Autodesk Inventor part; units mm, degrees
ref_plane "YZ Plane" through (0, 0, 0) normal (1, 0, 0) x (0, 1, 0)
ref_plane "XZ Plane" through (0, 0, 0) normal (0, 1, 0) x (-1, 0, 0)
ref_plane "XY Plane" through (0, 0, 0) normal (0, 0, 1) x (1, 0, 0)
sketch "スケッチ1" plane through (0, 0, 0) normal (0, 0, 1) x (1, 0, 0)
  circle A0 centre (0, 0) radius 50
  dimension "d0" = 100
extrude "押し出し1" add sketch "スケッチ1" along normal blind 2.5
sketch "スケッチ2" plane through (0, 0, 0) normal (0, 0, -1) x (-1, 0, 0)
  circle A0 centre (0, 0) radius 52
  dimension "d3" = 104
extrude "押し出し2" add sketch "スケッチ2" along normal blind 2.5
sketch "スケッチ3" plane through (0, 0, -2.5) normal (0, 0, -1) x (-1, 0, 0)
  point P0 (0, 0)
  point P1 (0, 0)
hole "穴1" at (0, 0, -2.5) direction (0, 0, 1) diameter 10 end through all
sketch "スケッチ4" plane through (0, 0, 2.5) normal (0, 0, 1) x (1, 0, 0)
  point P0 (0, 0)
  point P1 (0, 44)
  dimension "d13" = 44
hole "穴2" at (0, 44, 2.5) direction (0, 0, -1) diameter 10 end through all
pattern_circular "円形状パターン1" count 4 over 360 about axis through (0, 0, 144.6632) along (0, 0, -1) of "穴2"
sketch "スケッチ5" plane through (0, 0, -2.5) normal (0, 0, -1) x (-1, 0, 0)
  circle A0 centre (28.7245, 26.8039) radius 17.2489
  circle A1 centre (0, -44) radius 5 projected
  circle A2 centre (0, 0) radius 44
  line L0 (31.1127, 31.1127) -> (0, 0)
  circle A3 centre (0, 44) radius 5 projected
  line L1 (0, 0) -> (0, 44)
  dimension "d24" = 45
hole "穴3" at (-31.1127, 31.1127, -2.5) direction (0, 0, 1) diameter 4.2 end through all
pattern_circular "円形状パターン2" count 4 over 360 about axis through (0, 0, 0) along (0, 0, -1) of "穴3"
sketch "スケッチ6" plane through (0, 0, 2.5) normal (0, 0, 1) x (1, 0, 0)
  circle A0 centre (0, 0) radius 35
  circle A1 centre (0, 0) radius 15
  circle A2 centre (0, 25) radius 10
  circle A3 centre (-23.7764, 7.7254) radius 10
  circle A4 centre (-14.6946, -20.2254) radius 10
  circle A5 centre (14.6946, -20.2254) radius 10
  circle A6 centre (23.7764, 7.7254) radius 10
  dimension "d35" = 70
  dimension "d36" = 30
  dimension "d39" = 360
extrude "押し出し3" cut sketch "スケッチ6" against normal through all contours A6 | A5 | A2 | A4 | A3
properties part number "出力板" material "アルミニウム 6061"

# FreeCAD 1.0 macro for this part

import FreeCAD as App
import Part
import Sketcher

doc = App.newDocument("Part")
body = doc.addObject("PartDesign::Body", "Body")

# Sketch on XY plane
sketch1 = body.newObject("Sketcher::SketchObject", "Sketch")
sketch1.AttachmentSupport = (doc.getObject("XY_Plane"), [""])
sketch1.MapMode = "FlatFace"
sketch1.addGeometry(Part.Circle(App.Vector(0, 0, 0), App.Vector(0, 0, 1), 50), False)
sketch1.addConstraint(Sketcher.Constraint("Coincident", 0, 3, -1, 1))
sketch1.addConstraint(Sketcher.Constraint("Diameter", 0, 100.0))
pad1 = body.newObject("PartDesign::Pad", "Pad")
pad1.Profile = sketch1
pad1.Length = 2.5

# Sketch on XY plane
sketch2 = body.newObject("Sketcher::SketchObject", "Sketch001")
sketch2.AttachmentSupport = (doc.getObject("XY_Plane"), [""])
sketch2.MapMode = "FlatFace"
sketch2.addGeometry(Part.Circle(App.Vector(0, 0, 0), App.Vector(0, 0, 1), 52), False)
sketch2.addConstraint(Sketcher.Constraint("Coincident", 0, 3, -1, 1))
sketch2.addConstraint(Sketcher.Constraint("Diameter", 0, 104.0))
pad2 = body.newObject("PartDesign::Pad", "Pad001")
pad2.Profile = sketch2
pad2.Length = 2.5
pad2.Reversed = True

# Sketch on XY plane
sketch3 = body.newObject("Sketcher::SketchObject", "Sketch002")
sketch3.AttachmentSupport = (doc.getObject("XY_Plane"), [""])
sketch3.MapMode = "FlatFace"
sketch3.AttachmentOffset = App.Placement(App.Vector(0, 0, -2.5), App.Rotation())
sketch3.addGeometry(Part.Circle(App.Vector(0, 0, 0), App.Vector(0, 0, 1), 5), False)
sketch3.addConstraint(Sketcher.Constraint("Coincident", 0, 3, -1, 1))
sketch3.addConstraint(Sketcher.Constraint("Diameter", 0, 10.0))
doc.recompute()
hole = body.newObject("PartDesign::Hole", "Hole")
hole.Profile = sketch3
hole.ThreadType = "None"
hole.Diameter = 10
hole.DepthType = "ThroughAll"
hole.Reversed = True

# Sketch on XY plane
sketch4 = body.newObject("Sketcher::SketchObject", "Sketch003")
sketch4.AttachmentSupport = (doc.getObject("XY_Plane"), [""])
sketch4.MapMode = "FlatFace"
sketch4.AttachmentOffset = App.Placement(App.Vector(0, 0, 2.5), App.Rotation())
sketch4.addGeometry(Part.Circle(App.Vector(0, 44, 0), App.Vector(0, 0, 1), 5), False)
sketch4.addConstraint(Sketcher.Constraint("PointOnObject", 0, 3, -2))
sketch4.addConstraint(Sketcher.Constraint("Diameter", 0, 10.0))
sketch4.addConstraint(Sketcher.Constraint("DistanceY", -1, 1, 0, 3, 44.0))
doc.recompute()
hole2 = body.newObject("PartDesign::Hole", "Hole001")
hole2.Profile = sketch4
hole2.ThreadType = "None"
hole2.Diameter = 10
hole2.DepthType = "ThroughAll"
doc.recompute()

polarpattern = body.newObject("PartDesign::PolarPattern", "PolarPattern")
polarpattern.Originals = [hole2]
polarpattern.Axis = (doc.getObject("Z_Axis"), [""])
polarpattern.Angle = 360
polarpattern.Occurrences = 4
body.Tip = polarpattern

# Sketch on XY plane
sketch5 = body.newObject("Sketcher::SketchObject", "Sketch004")
sketch5.AttachmentSupport = (doc.getObject("XY_Plane"), [""])
sketch5.MapMode = "FlatFace"
sketch5.AttachmentOffset = App.Placement(App.Vector(0, 0, -2.5), App.Rotation())
sketch5.addGeometry(Part.Circle(App.Vector(-31.1127, 31.1127, 0), App.Vector(0, 0, 1), 2.1), False)
sketch5.addConstraint(Sketcher.Constraint("Diameter", 0, 4.2))
sketch5.addConstraint(Sketcher.Constraint("DistanceX", 0, 3, -1, 1, 31.1127))
sketch5.addConstraint(Sketcher.Constraint("DistanceY", -1, 1, 0, 3, 31.1127))
doc.recompute()
hole3 = body.newObject("PartDesign::Hole", "Hole002")
hole3.Profile = sketch5
hole3.ThreadType = "None"
hole3.Diameter = 4.2
hole3.DepthType = "ThroughAll"
hole3.Reversed = True
doc.recompute()

polarpattern2 = body.newObject("PartDesign::PolarPattern", "PolarPattern001")
polarpattern2.Originals = [hole3]
polarpattern2.Axis = (doc.getObject("Z_Axis"), [""])
polarpattern2.Angle = 360
polarpattern2.Occurrences = 4
body.Tip = polarpattern2

# Sketch on XY plane
sketch6 = body.newObject("Sketcher::SketchObject", "Sketch005")
sketch6.AttachmentSupport = (doc.getObject("XY_Plane"), [""])
sketch6.MapMode = "FlatFace"
sketch6.AttachmentOffset = App.Placement(App.Vector(0, 0, 2.5), App.Rotation())
sketch6.addGeometry(Part.Circle(App.Vector(23.7764, 7.7254, 0), App.Vector(0, 0, 1), 10), False)
sketch6.addGeometry(Part.Circle(App.Vector(14.6946, -20.2254, 0), App.Vector(0, 0, 1), 10), False)
sketch6.addGeometry(Part.Circle(App.Vector(0, 25, 0), App.Vector(0, 0, 1), 10), False)
sketch6.addGeometry(Part.Circle(App.Vector(-14.6946, -20.2254, 0), App.Vector(0, 0, 1), 10), False)
sketch6.addGeometry(Part.Circle(App.Vector(-23.7764, 7.7254, 0), App.Vector(0, 0, 1), 10), False)
sketch6.addConstraint(Sketcher.Constraint("Equal", 0, 1))
sketch6.addConstraint(Sketcher.Constraint("Equal", 1, 2))
sketch6.addConstraint(Sketcher.Constraint("Equal", 2, 3))
sketch6.addConstraint(Sketcher.Constraint("Equal", 3, 4))
sketch6.addConstraint(Sketcher.Constraint("Symmetric", 1, 3, 3, 3, -2))
sketch6.addConstraint(Sketcher.Constraint("Symmetric", 0, 3, 4, 3, -2))
sketch6.addConstraint(Sketcher.Constraint("PointOnObject", 2, 3, -2))
sketch6.addConstraint(Sketcher.Constraint("Diameter", 0, 20.0))
sketch6.addConstraint(Sketcher.Constraint("DistanceY", -1, 1, 2, 3, 25.0))
sketch6.addConstraint(Sketcher.Constraint("DistanceX", 3, 3, 0, 3, 38.471))
sketch6.addConstraint(Sketcher.Constraint("DistanceX", -1, 1, 0, 3, 23.7764))
sketch6.addConstraint(Sketcher.Constraint("DistanceY", -1, 1, 0, 3, 7.7254))
sketch6.addConstraint(Sketcher.Constraint("DistanceY", 1, 3, -1, 1, 20.2254))
pocket1 = body.newObject("PartDesign::Pocket", "Pocket")
pocket1.Profile = sketch6
pocket1.Type = "ThroughAll"

doc.recompute()
